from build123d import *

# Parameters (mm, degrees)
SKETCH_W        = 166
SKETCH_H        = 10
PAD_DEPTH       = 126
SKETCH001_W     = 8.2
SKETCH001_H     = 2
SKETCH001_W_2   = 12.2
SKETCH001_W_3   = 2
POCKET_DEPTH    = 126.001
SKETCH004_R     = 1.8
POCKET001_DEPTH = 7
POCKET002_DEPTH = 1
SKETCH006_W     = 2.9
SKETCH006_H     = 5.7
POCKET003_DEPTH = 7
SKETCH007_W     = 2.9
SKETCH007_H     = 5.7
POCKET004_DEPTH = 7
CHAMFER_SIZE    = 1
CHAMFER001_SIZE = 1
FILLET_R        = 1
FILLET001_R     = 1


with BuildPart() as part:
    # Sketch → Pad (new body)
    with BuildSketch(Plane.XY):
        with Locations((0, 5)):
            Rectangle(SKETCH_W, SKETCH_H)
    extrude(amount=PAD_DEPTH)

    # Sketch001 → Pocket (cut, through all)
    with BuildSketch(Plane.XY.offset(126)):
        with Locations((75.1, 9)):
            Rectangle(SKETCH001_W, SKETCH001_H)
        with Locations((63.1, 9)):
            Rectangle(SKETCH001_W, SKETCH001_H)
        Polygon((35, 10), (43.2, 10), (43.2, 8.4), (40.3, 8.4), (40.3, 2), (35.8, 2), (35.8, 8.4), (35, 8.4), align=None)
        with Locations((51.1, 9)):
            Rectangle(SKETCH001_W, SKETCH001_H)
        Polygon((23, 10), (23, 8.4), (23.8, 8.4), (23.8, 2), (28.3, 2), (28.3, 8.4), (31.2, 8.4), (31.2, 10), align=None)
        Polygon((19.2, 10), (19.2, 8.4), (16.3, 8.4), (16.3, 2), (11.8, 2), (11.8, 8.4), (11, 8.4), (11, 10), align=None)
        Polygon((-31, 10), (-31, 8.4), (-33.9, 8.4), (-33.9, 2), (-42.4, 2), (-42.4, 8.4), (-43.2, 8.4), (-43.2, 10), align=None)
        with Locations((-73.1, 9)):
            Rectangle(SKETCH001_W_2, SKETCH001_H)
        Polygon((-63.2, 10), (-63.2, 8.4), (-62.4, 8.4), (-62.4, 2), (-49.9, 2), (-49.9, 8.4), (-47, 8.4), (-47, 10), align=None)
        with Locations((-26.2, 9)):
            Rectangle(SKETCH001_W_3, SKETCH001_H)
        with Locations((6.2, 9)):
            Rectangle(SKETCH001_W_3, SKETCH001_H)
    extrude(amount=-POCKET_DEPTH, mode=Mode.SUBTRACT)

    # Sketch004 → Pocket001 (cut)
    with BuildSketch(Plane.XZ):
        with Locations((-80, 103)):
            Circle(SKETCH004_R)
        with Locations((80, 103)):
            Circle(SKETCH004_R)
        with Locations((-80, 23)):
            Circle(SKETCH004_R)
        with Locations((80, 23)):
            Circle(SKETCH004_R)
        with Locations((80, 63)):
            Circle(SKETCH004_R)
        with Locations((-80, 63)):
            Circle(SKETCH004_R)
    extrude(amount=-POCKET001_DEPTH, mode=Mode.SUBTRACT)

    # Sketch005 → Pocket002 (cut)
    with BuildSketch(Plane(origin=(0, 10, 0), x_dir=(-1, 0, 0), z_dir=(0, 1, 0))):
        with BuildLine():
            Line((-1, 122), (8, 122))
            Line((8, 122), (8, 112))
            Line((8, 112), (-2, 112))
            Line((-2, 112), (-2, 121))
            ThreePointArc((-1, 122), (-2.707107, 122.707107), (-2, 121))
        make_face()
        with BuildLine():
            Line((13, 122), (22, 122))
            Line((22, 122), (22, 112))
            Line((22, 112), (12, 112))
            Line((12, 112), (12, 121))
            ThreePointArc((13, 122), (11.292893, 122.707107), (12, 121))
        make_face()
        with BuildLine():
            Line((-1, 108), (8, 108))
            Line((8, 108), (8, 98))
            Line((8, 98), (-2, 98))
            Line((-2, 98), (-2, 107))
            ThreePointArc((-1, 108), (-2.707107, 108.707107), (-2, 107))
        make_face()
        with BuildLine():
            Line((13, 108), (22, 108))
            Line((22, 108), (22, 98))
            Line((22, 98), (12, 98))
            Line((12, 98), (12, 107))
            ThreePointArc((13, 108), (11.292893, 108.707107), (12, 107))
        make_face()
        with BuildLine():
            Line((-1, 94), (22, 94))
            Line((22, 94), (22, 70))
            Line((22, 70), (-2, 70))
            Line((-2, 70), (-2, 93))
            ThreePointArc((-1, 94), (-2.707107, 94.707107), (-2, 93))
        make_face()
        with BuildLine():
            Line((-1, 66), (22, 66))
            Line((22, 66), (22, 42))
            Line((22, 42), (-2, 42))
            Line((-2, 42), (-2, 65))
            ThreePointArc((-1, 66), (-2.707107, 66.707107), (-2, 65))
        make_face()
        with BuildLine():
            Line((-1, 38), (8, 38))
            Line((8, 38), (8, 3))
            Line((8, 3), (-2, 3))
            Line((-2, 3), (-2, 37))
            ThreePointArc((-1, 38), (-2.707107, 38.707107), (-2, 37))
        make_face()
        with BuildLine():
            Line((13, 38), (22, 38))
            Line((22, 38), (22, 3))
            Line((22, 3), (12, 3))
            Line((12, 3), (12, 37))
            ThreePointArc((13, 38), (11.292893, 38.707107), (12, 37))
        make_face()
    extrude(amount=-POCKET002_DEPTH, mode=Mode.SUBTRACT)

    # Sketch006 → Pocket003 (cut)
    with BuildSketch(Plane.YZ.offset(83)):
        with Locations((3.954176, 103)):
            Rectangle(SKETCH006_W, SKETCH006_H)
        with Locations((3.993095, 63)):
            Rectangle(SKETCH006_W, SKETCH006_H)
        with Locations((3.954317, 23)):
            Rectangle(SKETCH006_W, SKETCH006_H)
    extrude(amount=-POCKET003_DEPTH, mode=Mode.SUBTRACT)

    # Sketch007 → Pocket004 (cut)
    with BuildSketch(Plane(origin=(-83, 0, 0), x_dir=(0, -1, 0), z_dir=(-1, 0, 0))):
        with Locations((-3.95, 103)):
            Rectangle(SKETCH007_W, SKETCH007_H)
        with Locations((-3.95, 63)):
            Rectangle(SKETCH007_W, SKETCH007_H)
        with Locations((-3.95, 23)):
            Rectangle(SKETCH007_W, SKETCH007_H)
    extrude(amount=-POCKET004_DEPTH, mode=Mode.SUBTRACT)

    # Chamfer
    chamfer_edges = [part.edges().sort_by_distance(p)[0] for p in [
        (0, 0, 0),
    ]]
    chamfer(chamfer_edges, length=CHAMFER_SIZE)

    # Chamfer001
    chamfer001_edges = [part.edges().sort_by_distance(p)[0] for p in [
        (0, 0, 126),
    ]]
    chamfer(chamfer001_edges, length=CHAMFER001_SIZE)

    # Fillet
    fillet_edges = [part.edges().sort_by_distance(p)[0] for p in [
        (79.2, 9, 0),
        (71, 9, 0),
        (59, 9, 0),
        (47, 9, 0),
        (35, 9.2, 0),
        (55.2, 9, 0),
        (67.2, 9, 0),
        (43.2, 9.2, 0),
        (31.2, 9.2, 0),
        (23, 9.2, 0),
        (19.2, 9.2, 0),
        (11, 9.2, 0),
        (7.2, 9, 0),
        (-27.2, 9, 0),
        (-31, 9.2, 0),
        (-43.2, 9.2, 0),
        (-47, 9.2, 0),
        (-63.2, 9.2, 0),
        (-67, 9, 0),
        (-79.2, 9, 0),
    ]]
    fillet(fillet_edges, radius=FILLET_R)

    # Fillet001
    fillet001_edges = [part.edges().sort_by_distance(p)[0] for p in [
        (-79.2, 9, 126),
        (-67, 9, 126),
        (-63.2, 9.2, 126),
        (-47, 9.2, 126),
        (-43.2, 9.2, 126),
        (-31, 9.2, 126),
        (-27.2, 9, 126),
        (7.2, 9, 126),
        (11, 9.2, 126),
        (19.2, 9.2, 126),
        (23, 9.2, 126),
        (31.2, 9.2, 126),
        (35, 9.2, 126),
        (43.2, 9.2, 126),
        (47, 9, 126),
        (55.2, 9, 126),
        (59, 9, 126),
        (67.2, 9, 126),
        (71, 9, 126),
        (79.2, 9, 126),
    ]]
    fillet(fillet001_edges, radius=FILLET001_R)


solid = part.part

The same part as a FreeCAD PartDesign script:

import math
import FreeCAD as App
import Part
import Sketcher
Q = App.Units.Quantity


def edges_at(feature, points):
    """Names of the edges that pass closest to the given points."""
    edges = feature.Shape.Edges
    near = lambda p: min(range(len(edges)), key=lambda i: edges[i].distToShape(Part.Vertex(*p))[0])
    return sorted({f"Edge{near(p) + 1}" for p in points})

doc = App.newDocument("Part")
params = doc.addObject("Spreadsheet::Sheet", "Params")
for row, (alias, value) in enumerate([
    ("sketch1_width", "166 mm"),
    ("sketch1_height", "10 mm"),
    ("pad1_length", "126 mm"),
    ("sketch2_width", "2 mm"),
    ("sketch2_width2", "8.2 mm"),
    ("sketch2_width3", "0.8 mm"),
    ("sketch2_width4", "4.5 mm"),
    ("sketch2_width5", "12.2 mm"),
    ("sketch3_diameter", "3.6 mm"),
    ("pocket2_length", "7 mm"),
    ("sketch4_radius", "1 mm"),
    ("sketch4_width", "9 mm"),
    ("sketch4_width2", "23 mm"),
    ("sketch4_height", "34 mm"),
    ("pocket3_length", "1 mm"),
    ("sketch5_width", "2.9 mm"),
    ("sketch5_height", "5.7 mm"),
    ("pocket4_length", "7 mm"),
    ("sketch6_width", "2.9 mm"),
    ("sketch6_height", "5.7 mm"),
    ("pocket5_length", "7 mm"),
    ("chamfer_size", "1 mm"),
    ("chamfer2_size", "1 mm"),
    ("fillet_radius", "1 mm"),
    ("fillet2_radius", "1 mm"),
], start=1):
    params.set(f"A{row}", alias)
    params.set(f"B{row}", "=" + value)
    params.setAlias(f"B{row}", alias)

body = doc.addObject("PartDesign::Body", "Body")

# Sketch on XY plane
sketch1 = body.newObject("Sketcher::SketchObject", "Sketch")
sketch1.AttachmentSupport = (doc.getObject("XY_Plane"), [""])
sketch1.MapMode = "FlatFace"
sketch1.addGeometry([
    Part.LineSegment(App.Vector(-83, 10, 0), App.Vector(-83, 0, 0)),
    Part.LineSegment(App.Vector(-83, 0, 0), App.Vector(83, 0, 0)),
    Part.LineSegment(App.Vector(83, 0, 0), App.Vector(83, 10, 0)),
    Part.LineSegment(App.Vector(83, 10, 0), App.Vector(-83, 10, 0)),
], False)
sketch1.addConstraint([
    Sketcher.Constraint("Coincident", 0, 2, 1, 1),
    Sketcher.Constraint("Coincident", 1, 2, 2, 1),
    Sketcher.Constraint("Coincident", 2, 2, 3, 1),
    Sketcher.Constraint("Coincident", 3, 2, 0, 1),
    Sketcher.Constraint("Vertical", 0),
    Sketcher.Constraint("Horizontal", 1),
    Sketcher.Constraint("Vertical", 2),
    Sketcher.Constraint("Horizontal", 3),
    Sketcher.Constraint("Symmetric", 0, 2, 1, 2, -1, 1),
    Sketcher.Constraint("DistanceX", 1, 1, 1, 2, Q("166 mm")),
    Sketcher.Constraint("DistanceY", 0, 2, 0, 1, Q("10 mm")),
])
sketch1.setExpression("Constraints[9]", "Params.sketch1_width")
sketch1.setExpression("Constraints[10]", "Params.sketch1_height")
pad1 = body.newObject("PartDesign::Pad", "Pad")
pad1.Profile = sketch1
pad1.setExpression("Length", "Params.pad1_length")

# Sketch on XY plane
sketch2 = body.newObject("Sketcher::SketchObject", "Sketch001")
sketch2.AttachmentSupport = (doc.getObject("XY_Plane"), [""])
sketch2.MapMode = "FlatFace"
sketch2.AttachmentOffset = App.Placement(App.Vector(0, 0, 126), App.Rotation())
sketch2.addGeometry([
    Part.LineSegment(App.Vector(71, 10, 0), App.Vector(71, 8, 0)),  # 0
    Part.LineSegment(App.Vector(71, 8, 0), App.Vector(79.2, 8, 0)),  # 1
    Part.LineSegment(App.Vector(79.2, 8, 0), App.Vector(79.2, 10, 0)),  # 2
    Part.LineSegment(App.Vector(79.2, 10, 0), App.Vector(71, 10, 0)),  # 3
    Part.LineSegment(App.Vector(59, 10, 0), App.Vector(59, 8, 0)),  # 4
    Part.LineSegment(App.Vector(59, 8, 0), App.Vector(67.2, 8, 0)),  # 5
    Part.LineSegment(App.Vector(67.2, 8, 0), App.Vector(67.2, 10, 0)),  # 6
    Part.LineSegment(App.Vector(67.2, 10, 0), App.Vector(59, 10, 0)),  # 7
    Part.LineSegment(App.Vector(43.2, 10, 0), App.Vector(35, 10, 0)),  # 8
    Part.LineSegment(App.Vector(35, 10, 0), App.Vector(35, 8.4, 0)),  # 9
    Part.LineSegment(App.Vector(35, 8.4, 0), App.Vector(35.8, 8.4, 0)),  # 10
    Part.LineSegment(App.Vector(35.8, 8.4, 0), App.Vector(35.8, 2, 0)),  # 11
    Part.LineSegment(App.Vector(35.8, 2, 0), App.Vector(40.3, 2, 0)),  # 12
    Part.LineSegment(App.Vector(40.3, 2, 0), App.Vector(40.3, 8.4, 0)),  # 13
    Part.LineSegment(App.Vector(40.3, 8.4, 0), App.Vector(43.2, 8.4, 0)),  # 14
    Part.LineSegment(App.Vector(43.2, 8.4, 0), App.Vector(43.2, 10, 0)),  # 15
    Part.LineSegment(App.Vector(47, 10, 0), App.Vector(47, 8, 0)),  # 16
    Part.LineSegment(App.Vector(47, 8, 0), App.Vector(55.2, 8, 0)),  # 17
    Part.LineSegment(App.Vector(55.2, 8, 0), App.Vector(55.2, 10, 0)),  # 18
    Part.LineSegment(App.Vector(55.2, 10, 0), App.Vector(47, 10, 0)),  # 19
    Part.LineSegment(App.Vector(23, 10, 0), App.Vector(23, 8.4, 0)),  # 20
    Part.LineSegment(App.Vector(23, 8.4, 0), App.Vector(23.8, 8.4, 0)),  # 21
    Part.LineSegment(App.Vector(23.8, 8.4, 0), App.Vector(23.8, 2, 0)),  # 22
    Part.LineSegment(App.Vector(23.8, 2, 0), App.Vector(28.3, 2, 0)),  # 23
    Part.LineSegment(App.Vector(28.3, 2, 0), App.Vector(28.3, 8.4, 0)),  # 24
    Part.LineSegment(App.Vector(28.3, 8.4, 0), App.Vector(31.2, 8.4, 0)),  # 25
    Part.LineSegment(App.Vector(31.2, 8.4, 0), App.Vector(31.2, 10, 0)),  # 26
    Part.LineSegment(App.Vector(31.2, 10, 0), App.Vector(23, 10, 0)),  # 27
    Part.LineSegment(App.Vector(19.2, 8.4, 0), App.Vector(19.2, 10, 0)),  # 28
    Part.LineSegment(App.Vector(19.2, 10, 0), App.Vector(11, 10, 0)),  # 29
    Part.LineSegment(App.Vector(11, 10, 0), App.Vector(11, 8.4, 0)),  # 30
    Part.LineSegment(App.Vector(11, 8.4, 0), App.Vector(11.8, 8.4, 0)),  # 31
    Part.LineSegment(App.Vector(11.8, 8.4, 0), App.Vector(11.8, 2, 0)),  # 32
    Part.LineSegment(App.Vector(11.8, 2, 0), App.Vector(16.3, 2, 0)),  # 33
    Part.LineSegment(App.Vector(16.3, 2, 0), App.Vector(16.3, 8.4, 0)),  # 34
    Part.LineSegment(App.Vector(16.3, 8.4, 0), App.Vector(19.2, 8.4, 0)),  # 35
    Part.LineSegment(App.Vector(-31, 8.4, 0), App.Vector(-31, 10, 0)),  # 36
    Part.LineSegment(App.Vector(-31, 10, 0), App.Vector(-43.2, 10, 0)),  # 37
    Part.LineSegment(App.Vector(-43.2, 10, 0), App.Vector(-43.2, 8.4, 0)),  # 38
    Part.LineSegment(App.Vector(-43.2, 8.4, 0), App.Vector(-42.4, 8.4, 0)),  # 39
    Part.LineSegment(App.Vector(-42.4, 8.4, 0), App.Vector(-42.4, 2, 0)),  # 40
    Part.LineSegment(App.Vector(-42.4, 2, 0), App.Vector(-33.9, 2, 0)),  # 41
    Part.LineSegment(App.Vector(-33.9, 2, 0), App.Vector(-33.9, 8.4, 0)),  # 42
    Part.LineSegment(App.Vector(-33.9, 8.4, 0), App.Vector(-31, 8.4, 0)),  # 43
    Part.LineSegment(App.Vector(-79.2, 10, 0), App.Vector(-79.2, 8, 0)),  # 44
    Part.LineSegment(App.Vector(-79.2, 8, 0), App.Vector(-67, 8, 0)),  # 45
    Part.LineSegment(App.Vector(-67, 8, 0), App.Vector(-67, 10, 0)),  # 46
    Part.LineSegment(App.Vector(-67, 10, 0), App.Vector(-79.2, 10, 0)),  # 47
    Part.LineSegment(App.Vector(-63.2, 10, 0), App.Vector(-63.2, 8.4, 0)),  # 48
    Part.LineSegment(App.Vector(-63.2, 8.4, 0), App.Vector(-62.4, 8.4, 0)),  # 49
    Part.LineSegment(App.Vector(-62.4, 8.4, 0), App.Vector(-62.4, 2, 0)),  # 50
    Part.LineSegment(App.Vector(-62.4, 2, 0), App.Vector(-49.9, 2, 0)),  # 51
    Part.LineSegment(App.Vector(-49.9, 2, 0), App.Vector(-49.9, 8.4, 0)),  # 52
    Part.LineSegment(App.Vector(-49.9, 8.4, 0), App.Vector(-47, 8.4, 0)),  # 53
    Part.LineSegment(App.Vector(-47, 8.4, 0), App.Vector(-47, 10, 0)),  # 54
    Part.LineSegment(App.Vector(-47, 10, 0), App.Vector(-63.2, 10, 0)),  # 55
    Part.LineSegment(App.Vector(-27.2, 10, 0), App.Vector(-27.2, 8, 0)),  # 56
    Part.LineSegment(App.Vector(-27.2, 8, 0), App.Vector(-25.2, 8, 0)),  # 57
    Part.LineSegment(App.Vector(-25.2, 8, 0), App.Vector(-25.2, 10, 0)),  # 58
    Part.LineSegment(App.Vector(-25.2, 10, 0), App.Vector(-27.2, 10, 0)),  # 59
    Part.LineSegment(App.Vector(5.2, 10, 0), App.Vector(5.2, 8, 0)),  # 60
    Part.LineSegment(App.Vector(5.2, 8, 0), App.Vector(7.2, 8, 0)),  # 61
    Part.LineSegment(App.Vector(7.2, 8, 0), App.Vector(7.2, 10, 0)),  # 62
    Part.LineSegment(App.Vector(7.2, 10, 0), App.Vector(5.2, 10, 0)),  # 63
], False)
sketch2.addConstraint([
    Sketcher.Constraint("Coincident", 0, 2, 1, 1),
    Sketcher.Constraint("Coincident", 1, 2, 2, 1),
    Sketcher.Constraint("Coincident", 2, 2, 3, 1),
    Sketcher.Constraint("Coincident", 3, 2, 0, 1),
    Sketcher.Constraint("Coincident", 4, 2, 5, 1),
    Sketcher.Constraint("Coincident", 5, 2, 6, 1),
    Sketcher.Constraint("Coincident", 6, 2, 7, 1),
    Sketcher.Constraint("Coincident", 7, 2, 4, 1),
    Sketcher.Constraint("Coincident", 8, 2, 9, 1),
    Sketcher.Constraint("Coincident", 9, 2, 10, 1),
    Sketcher.Constraint("Coincident", 10, 2, 11, 1),
    Sketcher.Constraint("Coincident", 11, 2, 12, 1),
    Sketcher.Constraint("Coincident", 12, 2, 13, 1),
    Sketcher.Constraint("Coincident", 13, 2, 14, 1),
    Sketcher.Constraint("Coincident", 14, 2, 15, 1),
    Sketcher.Constraint("Coincident", 15, 2, 8, 1),
    Sketcher.Constraint("Coincident", 16, 2, 17, 1),
    Sketcher.Constraint("Coincident", 17, 2, 18, 1),
    Sketcher.Constraint("Coincident", 18, 2, 19, 1),
    Sketcher.Constraint("Coincident", 19, 2, 16, 1),
    Sketcher.Constraint("Coincident", 20, 2, 21, 1),
    Sketcher.Constraint("Coincident", 21, 2, 22, 1),
    Sketcher.Constraint("Coincident", 22, 2, 23, 1),
    Sketcher.Constraint("Coincident", 23, 2, 24, 1),
    Sketcher.Constraint("Coincident", 24, 2, 25, 1),
    Sketcher.Constraint("Coincident", 25, 2, 26, 1),
    Sketcher.Constraint("Coincident", 26, 2, 27, 1),
    Sketcher.Constraint("Coincident", 27, 2, 20, 1),
    Sketcher.Constraint("Coincident", 28, 2, 29, 1),
    Sketcher.Constraint("Coincident", 29, 2, 30, 1),
    Sketcher.Constraint("Coincident", 30, 2, 31, 1),
    Sketcher.Constraint("Coincident", 31, 2, 32, 1),
    Sketcher.Constraint("Coincident", 32, 2, 33, 1),
    Sketcher.Constraint("Coincident", 33, 2, 34, 1),
    Sketcher.Constraint("Coincident", 34, 2, 35, 1),
    Sketcher.Constraint("Coincident", 35, 2, 28, 1),
    Sketcher.Constraint("Coincident", 36, 2, 37, 1),
    Sketcher.Constraint("Coincident", 37, 2, 38, 1),
    Sketcher.Constraint("Coincident", 38, 2, 39, 1),
    Sketcher.Constraint("Coincident", 39, 2, 40, 1),
    Sketcher.Constraint("Coincident", 40, 2, 41, 1),
    Sketcher.Constraint("Coincident", 41, 2, 42, 1),
    Sketcher.Constraint("Coincident", 42, 2, 43, 1),
    Sketcher.Constraint("Coincident", 43, 2, 36, 1),
    Sketcher.Constraint("Coincident", 44, 2, 45, 1),
    Sketcher.Constraint("Coincident", 45, 2, 46, 1),
    Sketcher.Constraint("Coincident", 46, 2, 47, 1),
    Sketcher.Constraint("Coincident", 47, 2, 44, 1),
    Sketcher.Constraint("Coincident", 48, 2, 49, 1),
    Sketcher.Constraint("Coincident", 49, 2, 50, 1),
    Sketcher.Constraint("Coincident", 50, 2, 51, 1),
    Sketcher.Constraint("Coincident", 51, 2, 52, 1),
    Sketcher.Constraint("Coincident", 52, 2, 53, 1),
    Sketcher.Constraint("Coincident", 53, 2, 54, 1),
    Sketcher.Constraint("Coincident", 54, 2, 55, 1),
    Sketcher.Constraint("Coincident", 55, 2, 48, 1),
    Sketcher.Constraint("Coincident", 56, 2, 57, 1),
    Sketcher.Constraint("Coincident", 57, 2, 58, 1),
    Sketcher.Constraint("Coincident", 58, 2, 59, 1),
    Sketcher.Constraint("Coincident", 59, 2, 56, 1),
    Sketcher.Constraint("Coincident", 60, 2, 61, 1),
    Sketcher.Constraint("Coincident", 61, 2, 62, 1),
    Sketcher.Constraint("Coincident", 62, 2, 63, 1),
    Sketcher.Constraint("Coincident", 63, 2, 60, 1),
    Sketcher.Constraint("Vertical", 0),
    Sketcher.Constraint("Horizontal", 1),
    Sketcher.Constraint("Vertical", 2),
    Sketcher.Constraint("Horizontal", 3),
    Sketcher.Constraint("Vertical", 4),
    Sketcher.Constraint("Horizontal", 5),
    Sketcher.Constraint("Vertical", 6),
    Sketcher.Constraint("Horizontal", 7),
    Sketcher.Constraint("Horizontal", 8),
    Sketcher.Constraint("Vertical", 9),
    Sketcher.Constraint("Horizontal", 10),
    Sketcher.Constraint("Vertical", 11),
    Sketcher.Constraint("Horizontal", 12),
    Sketcher.Constraint("Vertical", 13),
    Sketcher.Constraint("Horizontal", 14),
    Sketcher.Constraint("Vertical", 15),
    Sketcher.Constraint("Vertical", 16),
    Sketcher.Constraint("Horizontal", 17),
    Sketcher.Constraint("Vertical", 18),
    Sketcher.Constraint("Horizontal", 19),
    Sketcher.Constraint("Vertical", 20),
    Sketcher.Constraint("Horizontal", 21),
    Sketcher.Constraint("Vertical", 22),
    Sketcher.Constraint("Horizontal", 23),
    Sketcher.Constraint("Vertical", 24),
    Sketcher.Constraint("Horizontal", 25),
    Sketcher.Constraint("Vertical", 26),
    Sketcher.Constraint("Horizontal", 27),
    Sketcher.Constraint("Vertical", 28),
    Sketcher.Constraint("Horizontal", 29),
    Sketcher.Constraint("Vertical", 30),
    Sketcher.Constraint("Horizontal", 31),
    Sketcher.Constraint("Vertical", 32),
    Sketcher.Constraint("Horizontal", 33),
    Sketcher.Constraint("Vertical", 34),
    Sketcher.Constraint("Horizontal", 35),
    Sketcher.Constraint("Vertical", 36),
    Sketcher.Constraint("Horizontal", 37),
    Sketcher.Constraint("Vertical", 38),
    Sketcher.Constraint("Horizontal", 39),
    Sketcher.Constraint("Vertical", 40),
    Sketcher.Constraint("Horizontal", 41),
    Sketcher.Constraint("Vertical", 42),
    Sketcher.Constraint("Horizontal", 43),
    Sketcher.Constraint("Vertical", 44),
    Sketcher.Constraint("Horizontal", 45),
    Sketcher.Constraint("Vertical", 46),
    Sketcher.Constraint("Horizontal", 47),
    Sketcher.Constraint("Vertical", 48),
    Sketcher.Constraint("Horizontal", 49),
    Sketcher.Constraint("Vertical", 50),
    Sketcher.Constraint("Horizontal", 51),
    Sketcher.Constraint("Vertical", 52),
    Sketcher.Constraint("Horizontal", 53),
    Sketcher.Constraint("Vertical", 54),
    Sketcher.Constraint("Horizontal", 55),
    Sketcher.Constraint("Vertical", 56),
    Sketcher.Constraint("Horizontal", 57),
    Sketcher.Constraint("Vertical", 58),
    Sketcher.Constraint("Horizontal", 59),
    Sketcher.Constraint("Vertical", 60),
    Sketcher.Constraint("Horizontal", 61),
    Sketcher.Constraint("Vertical", 62),
    Sketcher.Constraint("Horizontal", 63),
    Sketcher.Constraint("Symmetric", 15, 2, 37, 2, -2),
    Sketcher.Constraint("Symmetric", 1, 2, 44, 2, -2),
    Sketcher.Constraint("Symmetric", 19, 2, 54, 2, -2),
    Sketcher.Constraint("Horizontal", 1, 2, 4, 2),
    Sketcher.Constraint("Horizontal", 3, 2, 6, 2),
    Sketcher.Constraint("Horizontal", 7, 2, 8, 2),
    Sketcher.Constraint("Horizontal", 10, 2, 13, 2),
    Sketcher.Constraint("Horizontal", 5, 2, 16, 2),
    Sketcher.Constraint("Horizontal", 15, 2, 18, 2),
    Sketcher.Constraint("Horizontal", 14, 2, 20, 2),
    Sketcher.Constraint("Horizontal", 12, 2, 22, 2),
    Sketcher.Constraint("Horizontal", 21, 2, 24, 2),
    Sketcher.Constraint("Horizontal", 19, 2, 26, 2),
    Sketcher.Constraint("Horizontal", 27, 2, 28, 2),
    Sketcher.Constraint("Horizontal", 25, 2, 30, 2),
    Sketcher.Constraint("Horizontal", 23, 2, 32, 2),
    Sketcher.Constraint("Horizontal", 31, 2, 34, 2),
    Sketcher.Constraint("Horizontal", 35, 2, 38, 2),
    Sketcher.Constraint("Horizontal", 33, 2, 40, 2),
    Sketcher.Constraint("Horizontal", 39, 2, 42, 2),
    Sketcher.Constraint("Horizontal", 37, 2, 46, 2),
    Sketcher.Constraint("Horizontal", 43, 2, 48, 2),
    Sketcher.Constraint("Horizontal", 41, 2, 50, 2),
    Sketcher.Constraint("Horizontal", 49, 2, 52, 2),
    Sketcher.Constraint("Horizontal", 45, 2, 56, 2),
    Sketcher.Constraint("Horizontal", 55, 2, 58, 2),
    Sketcher.Constraint("Horizontal", 57, 2, 60, 2),
    Sketcher.Constraint("Horizontal", 59, 2, 62, 2),
    Sketcher.Constraint("Equal", 3, 5),
    Sketcher.Constraint("Equal", 7, 8),
    Sketcher.Constraint("Equal", 8, 17),
    Sketcher.Constraint("Equal", 10, 21),
    Sketcher.Constraint("Equal", 12, 23),
    Sketcher.Constraint("Equal", 14, 25),
    Sketcher.Constraint("Equal", 27, 29),
    Sketcher.Constraint("Equal", 21, 31),
    Sketcher.Constraint("Equal", 23, 33),
    Sketcher.Constraint("Equal", 31, 39),
    Sketcher.Constraint("Equal", 35, 43),
    Sketcher.Constraint("Equal", 37, 45),
    Sketcher.Constraint("Equal", 39, 49),
    Sketcher.Constraint("Equal", 43, 53),
    Sketcher.Constraint("Equal", 59, 61),
    Sketcher.Constraint("Equal", 63, 0),
    Sketcher.Constraint("DistanceX", 57, 1, 57, 2, Q("2 mm")),
    Sketcher.Constraint("DistanceX", 1, 1, 1, 2, Q("8.2 mm")),
    Sketcher.Constraint("DistanceX", 10, 1, 10, 2, Q("0.8 mm")),
    Sketcher.Constraint("DistanceX", 12, 1, 12, 2, Q("4.5 mm")),
    Sketcher.Constraint("DistanceX", 37, 2, 37, 1, Q("12.2 mm")),
    Sketcher.Constraint("DistanceX", 51, 1, 51, 2, Q("12.5 mm")),
    Sketcher.Constraint("DistanceY", 9, 2, 9, 1, Q("1.6 mm")),
    Sketcher.Constraint("DistanceY", 11, 2, 11, 1, Q("6.4 mm")),
    Sketcher.Constraint("DistanceX", -1, 1, 0, 2, Q("71 mm")),
    Sketcher.Constraint("DistanceY", -1, 1, 0, 2, Q("8 mm")),
    Sketcher.Constraint("DistanceX", -1, 1, 4, 2, Q("59 mm")),
    Sketcher.Constraint("DistanceX", -1, 1, 8, 2, Q("35 mm")),
    Sketcher.Constraint("DistanceX", -1, 1, 16, 2, Q("47 mm")),
    Sketcher.Constraint("DistanceX", -1, 1, 20, 2, Q("23 mm")),
    Sketcher.Constraint("DistanceX", -1, 1, 29, 2, Q("11 mm")),
    Sketcher.Constraint("DistanceX", 56, 2, -1, 1, Q("27.2 mm")),
    Sketcher.Constraint("DistanceX", -1, 1, 60, 2, Q("5.2 mm")),
])
sketch2.setExpression("Constraints[172]", "Params.sketch2_width")
sketch2.setExpression("Constraints[173]", "Params.sketch2_width2")
sketch2.setExpression("Constraints[174]", "Params.sketch2_width3")
sketch2.setExpression("Constraints[175]", "Params.sketch2_width4")
sketch2.setExpression("Constraints[176]", "Params.sketch2_width5")
pocket1 = body.newObject("PartDesign::Pocket", "Pocket")
pocket1.Profile = sketch2
pocket1.Type = "ThroughAll"

# Sketch on XZ plane
sketch3 = body.newObject("Sketcher::SketchObject", "Sketch002")
sketch3.AttachmentSupport = (doc.getObject("XZ_Plane"), [""])
sketch3.MapMode = "FlatFace"
sketch3.addGeometry([
    Part.Circle(App.Vector(-80, 103, 0), App.Vector(0, 0, 1), 1.8),  # 0
    Part.Circle(App.Vector(80, 103, 0), App.Vector(0, 0, 1), 1.8),  # 1
    Part.Circle(App.Vector(-80, 23, 0), App.Vector(0, 0, 1), 1.8),  # 2
    Part.Circle(App.Vector(80, 23, 0), App.Vector(0, 0, 1), 1.8),  # 3
    Part.Circle(App.Vector(80, 63, 0), App.Vector(0, 0, 1), 1.8),  # 4
    Part.Circle(App.Vector(-80, 63, 0), App.Vector(0, 0, 1), 1.8),  # 5
], False)
sketch3.addConstraint([
    Sketcher.Constraint("Equal", 0, 1),
    Sketcher.Constraint("Equal", 1, 2),
    Sketcher.Constraint("Equal", 2, 3),
    Sketcher.Constraint("Equal", 3, 4),
    Sketcher.Constraint("Equal", 4, 5),
    Sketcher.Constraint("Symmetric", 0, 3, 1, 3, -2),
    Sketcher.Constraint("Symmetric", 2, 3, 3, 3, -2),
    Sketcher.Constraint("Symmetric", 4, 3, 5, 3, -2),
    Sketcher.Constraint("Vertical", 0, 3, 2, 3),
    Sketcher.Constraint("Vertical", 3, 3, 4, 3),
    Sketcher.Constraint("Diameter", 0, Q("3.6 mm")),
    Sketcher.Constraint("DistanceX", 0, 3, -1, 1, Q("80 mm")),
    Sketcher.Constraint("DistanceY", -1, 1, 0, 3, Q("103 mm")),
    Sketcher.Constraint("DistanceY", -1, 1, 2, 3, Q("23 mm")),
    Sketcher.Constraint("DistanceY", -1, 1, 4, 3, Q("63 mm")),
])
sketch3.setExpression("Constraints[10]", "Params.sketch3_diameter")
pocket2 = body.newObject("PartDesign::Pocket", "Pocket001")
pocket2.Profile = sketch3
pocket2.setExpression("Length", "Params.pocket2_length")

# Sketch on XZ plane
sketch4 = body.newObject("Sketcher::SketchObject", "Sketch003")
sketch4.AttachmentSupport = (doc.getObject("XZ_Plane"), [""])
sketch4.MapMode = "FlatFace"
sketch4.AttachmentOffset = App.Placement(App.Vector(0, 0, -10), App.Rotation())
sketch4.addGeometry([
    Part.LineSegment(App.Vector(-8, 122, 0), App.Vector(1, 122, 0)),  # 0
    Part.ArcOfCircle(Part.Circle(App.Vector(2, 122, 0), App.Vector(0, 0, 1), 1), math.radians(-90), math.radians(180)),  # 1
    Part.LineSegment(App.Vector(2, 121, 0), App.Vector(2, 112, 0)),  # 2
    Part.LineSegment(App.Vector(2, 112, 0), App.Vector(-8, 112, 0)),  # 3
    Part.LineSegment(App.Vector(-8, 112, 0), App.Vector(-8, 122, 0)),  # 4
    Part.LineSegment(App.Vector(-22, 122, 0), App.Vector(-13, 122, 0)),  # 5
    Part.ArcOfCircle(Part.Circle(App.Vector(-12, 122, 0), App.Vector(0, 0, 1), 1), math.radians(-90), math.radians(180)),  # 6
    Part.LineSegment(App.Vector(-12, 121, 0), App.Vector(-12, 112, 0)),  # 7
    Part.LineSegment(App.Vector(-12, 112, 0), App.Vector(-22, 112, 0)),  # 8
    Part.LineSegment(App.Vector(-22, 112, 0), App.Vector(-22, 122, 0)),  # 9
    Part.LineSegment(App.Vector(-8, 108, 0), App.Vector(1, 108, 0)),  # 10
    Part.ArcOfCircle(Part.Circle(App.Vector(2, 108, 0), App.Vector(0, 0, 1), 1), math.radians(-90), math.radians(180)),  # 11
    Part.LineSegment(App.Vector(2, 107, 0), App.Vector(2, 98, 0)),  # 12
    Part.LineSegment(App.Vector(2, 98, 0), App.Vector(-8, 98, 0)),  # 13
    Part.LineSegment(App.Vector(-8, 98, 0), App.Vector(-8, 108, 0)),  # 14
    Part.LineSegment(App.Vector(-22, 108, 0), App.Vector(-13, 108, 0)),  # 15
    Part.ArcOfCircle(Part.Circle(App.Vector(-12, 108, 0), App.Vector(0, 0, 1), 1), math.radians(-90), math.radians(180)),  # 16
    Part.LineSegment(App.Vector(-12, 107, 0), App.Vector(-12, 98, 0)),  # 17
    Part.LineSegment(App.Vector(-12, 98, 0), App.Vector(-22, 98, 0)),  # 18
    Part.LineSegment(App.Vector(-22, 98, 0), App.Vector(-22, 108, 0)),  # 19
    Part.LineSegment(App.Vector(-22, 94, 0), App.Vector(1, 94, 0)),  # 20
    Part.ArcOfCircle(Part.Circle(App.Vector(2, 94, 0), App.Vector(0, 0, 1), 1), math.radians(-90), math.radians(180)),  # 21
    Part.LineSegment(App.Vector(2, 93, 0), App.Vector(2, 70, 0)),  # 22
    Part.LineSegment(App.Vector(2, 70, 0), App.Vector(-22, 70, 0)),  # 23
    Part.LineSegment(App.Vector(-22, 70, 0), App.Vector(-22, 94, 0)),  # 24
    Part.LineSegment(App.Vector(-22, 66, 0), App.Vector(1, 66, 0)),  # 25
    Part.ArcOfCircle(Part.Circle(App.Vector(2, 66, 0), App.Vector(0, 0, 1), 1), math.radians(-90), math.radians(180)),  # 26
    Part.LineSegment(App.Vector(2, 65, 0), App.Vector(2, 42, 0)),  # 27
    Part.LineSegment(App.Vector(2, 42, 0), App.Vector(-22, 42, 0)),  # 28
    Part.LineSegment(App.Vector(-22, 42, 0), App.Vector(-22, 66, 0)),  # 29
    Part.LineSegment(App.Vector(-8, 38, 0), App.Vector(1, 38, 0)),  # 30
    Part.ArcOfCircle(Part.Circle(App.Vector(2, 38, 0), App.Vector(0, 0, 1), 1), math.radians(-90), math.radians(180)),  # 31
    Part.LineSegment(App.Vector(2, 37, 0), App.Vector(2, 3, 0)),  # 32
    Part.LineSegment(App.Vector(2, 3, 0), App.Vector(-8, 3, 0)),  # 33
    Part.LineSegment(App.Vector(-8, 3, 0), App.Vector(-8, 38, 0)),  # 34
    Part.LineSegment(App.Vector(-22, 38, 0), App.Vector(-13, 38, 0)),  # 35
    Part.ArcOfCircle(Part.Circle(App.Vector(-12, 38, 0), App.Vector(0, 0, 1), 1), math.radians(-90), math.radians(180)),  # 36
    Part.LineSegment(App.Vector(-12, 37, 0), App.Vector(-12, 3, 0)),  # 37
    Part.LineSegment(App.Vector(-12, 3, 0), App.Vector(-22, 3, 0)),  # 38
    Part.LineSegment(App.Vector(-22, 3, 0), App.Vector(-22, 38, 0)),  # 39
], False)
sketch4.addConstraint([
    Sketcher.Constraint("Coincident", 0, 2, 1, 2),
    Sketcher.Constraint("Coincident", 1, 1, 2, 1),
    Sketcher.Constraint("Coincident", 2, 2, 3, 1),
    Sketcher.Constraint("Coincident", 3, 2, 4, 1),
    Sketcher.Constraint("Coincident", 4, 2, 0, 1),
    Sketcher.Constraint("Coincident", 5, 2, 6, 2),
    Sketcher.Constraint("Coincident", 6, 1, 7, 1),
    Sketcher.Constraint("Coincident", 7, 2, 8, 1),
    Sketcher.Constraint("Coincident", 8, 2, 9, 1),
    Sketcher.Constraint("Coincident", 9, 2, 5, 1),
    Sketcher.Constraint("Coincident", 10, 2, 11, 2),
    Sketcher.Constraint("Coincident", 11, 1, 12, 1),
    Sketcher.Constraint("Coincident", 12, 2, 13, 1),
    Sketcher.Constraint("Coincident", 13, 2, 14, 1),
    Sketcher.Constraint("Coincident", 14, 2, 10, 1),
    Sketcher.Constraint("Coincident", 15, 2, 16, 2),
    Sketcher.Constraint("Coincident", 16, 1, 17, 1),
    Sketcher.Constraint("Coincident", 17, 2, 18, 1),
    Sketcher.Constraint("Coincident", 18, 2, 19, 1),
    Sketcher.Constraint("Coincident", 19, 2, 15, 1),
    Sketcher.Constraint("Coincident", 20, 2, 21, 2),
    Sketcher.Constraint("Coincident", 21, 1, 22, 1),
    Sketcher.Constraint("Coincident", 22, 2, 23, 1),
    Sketcher.Constraint("Coincident", 23, 2, 24, 1),
    Sketcher.Constraint("Coincident", 24, 2, 20, 1),
    Sketcher.Constraint("Coincident", 25, 2, 26, 2),
    Sketcher.Constraint("Coincident", 26, 1, 27, 1),
    Sketcher.Constraint("Coincident", 27, 2, 28, 1),
    Sketcher.Constraint("Coincident", 28, 2, 29, 1),
    Sketcher.Constraint("Coincident", 29, 2, 25, 1),
    Sketcher.Constraint("Coincident", 30, 2, 31, 2),
    Sketcher.Constraint("Coincident", 31, 1, 32, 1),
    Sketcher.Constraint("Coincident", 32, 2, 33, 1),
    Sketcher.Constraint("Coincident", 33, 2, 34, 1),
    Sketcher.Constraint("Coincident", 34, 2, 30, 1),
    Sketcher.Constraint("Coincident", 35, 2, 36, 2),
    Sketcher.Constraint("Coincident", 36, 1, 37, 1),
    Sketcher.Constraint("Coincident", 37, 2, 38, 1),
    Sketcher.Constraint("Coincident", 38, 2, 39, 1),
    Sketcher.Constraint("Coincident", 39, 2, 35, 1),
    Sketcher.Constraint("Horizontal", 0),
    Sketcher.Constraint("Vertical", 2),
    Sketcher.Constraint("Horizontal", 3),
    Sketcher.Constraint("Vertical", 4),
    Sketcher.Constraint("Horizontal", 5),
    Sketcher.Constraint("Vertical", 7),
    Sketcher.Constraint("Horizontal", 8),
    Sketcher.Constraint("Vertical", 9),
    Sketcher.Constraint("Horizontal", 10),
    Sketcher.Constraint("Vertical", 12),
    Sketcher.Constraint("Horizontal", 13),
    Sketcher.Constraint("Vertical", 14),
    Sketcher.Constraint("Horizontal", 15),
    Sketcher.Constraint("Vertical", 17),
    Sketcher.Constraint("Horizontal", 18),
    Sketcher.Constraint("Vertical", 19),
    Sketcher.Constraint("Horizontal", 20),
    Sketcher.Constraint("Vertical", 22),
    Sketcher.Constraint("Horizontal", 23),
    Sketcher.Constraint("Vertical", 24),
    Sketcher.Constraint("Horizontal", 25),
    Sketcher.Constraint("Vertical", 27),
    Sketcher.Constraint("Horizontal", 28),
    Sketcher.Constraint("Vertical", 29),
    Sketcher.Constraint("Horizontal", 30),
    Sketcher.Constraint("Vertical", 32),
    Sketcher.Constraint("Horizontal", 33),
    Sketcher.Constraint("Vertical", 34),
    Sketcher.Constraint("Horizontal", 35),
    Sketcher.Constraint("Vertical", 37),
    Sketcher.Constraint("Horizontal", 38),
    Sketcher.Constraint("Vertical", 39),
    Sketcher.Constraint("Equal", 1, 6),
    Sketcher.Constraint("Equal", 6, 11),
    Sketcher.Constraint("Equal", 11, 16),
    Sketcher.Constraint("Equal", 16, 21),
    Sketcher.Constraint("Equal", 21, 26),
    Sketcher.Constraint("Equal", 26, 31),
    Sketcher.Constraint("Equal", 31, 36),
    Sketcher.Constraint("Horizontal", 1, 3, 6, 3),
    Sketcher.Constraint("Horizontal", 11, 3, 16, 3),
    Sketcher.Constraint("Horizontal", 31, 3, 36, 3),
    Sketcher.Constraint("Horizontal", 6, 3, 0, 2),
    Sketcher.Constraint("Horizontal", 4, 2, 5, 2),
    Sketcher.Constraint("Horizontal", 3, 2, 7, 2),
    Sketcher.Constraint("Horizontal", 16, 3, 10, 2),
    Sketcher.Constraint("Horizontal", 14, 2, 15, 2),
    Sketcher.Constraint("Horizontal", 13, 2, 17, 2),
    Sketcher.Constraint("Horizontal", 21, 3, 20, 2),
    Sketcher.Constraint("Horizontal", 26, 3, 25, 2),
    Sketcher.Constraint("Horizontal", 36, 3, 30, 2),
    Sketcher.Constraint("Horizontal", 34, 2, 35, 2),
    Sketcher.Constraint("Horizontal", 33, 2, 37, 2),
    Sketcher.Constraint("Vertical", 1, 3, 11, 3),
    Sketcher.Constraint("Vertical", 6, 3, 16, 3),
    Sketcher.Constraint("Vertical", 11, 3, 21, 3),
    Sketcher.Constraint("Vertical", 21, 3, 26, 3),
    Sketcher.Constraint("Vertical", 26, 3, 31, 3),
    Sketcher.Constraint("Vertical", 16, 3, 36, 3),
    Sketcher.Constraint("Vertical", 31, 3, 1, 1),
    Sketcher.Constraint("Vertical", 36, 3, 6, 1),
    Sketcher.Constraint("Vertical", 2, 2, 11, 1),
    Sketcher.Constraint("Vertical", 4, 2, 13, 2),
    Sketcher.Constraint("Vertical", 7, 2, 16, 1),
    Sketcher.Constraint("Vertical", 9, 2, 18, 2),
    Sketcher.Constraint("Vertical", 12, 2, 21, 1),
    Sketcher.Constraint("Vertical", 19, 2, 23, 2),
    Sketcher.Constraint("Vertical", 22, 2, 26, 1),
    Sketcher.Constraint("Vertical", 24, 2, 28, 2),
    Sketcher.Constraint("Vertical", 27, 2, 31, 1),
    Sketcher.Constraint("Vertical", 14, 2, 33, 2),
    Sketcher.Constraint("Vertical", 17, 2, 36, 1),
    Sketcher.Constraint("Vertical", 29, 2, 38, 2),
    Sketcher.Constraint("Equal", 0, 5),
    Sketcher.Constraint("Equal", 35, 2),
    Sketcher.Constraint("Equal", 7, 12),
    Sketcher.Constraint("Equal", 25, 22),
    Sketcher.Constraint("Equal", 22, 27),
    Sketcher.Constraint("Radius", 1, Q("1 mm")),
    Sketcher.Constraint("DistanceX", 0, 1, 0, 2, Q("9 mm")),
    Sketcher.Constraint("DistanceX", 20, 1, 20, 2, Q("23 mm")),
    Sketcher.Constraint("DistanceY", 32, 2, 32, 1, Q("34 mm")),
    Sketcher.Constraint("DistanceX", -1, 1, 1, 3, Q("2 mm")),
    Sketcher.Constraint("DistanceY", -1, 1, 1, 3, Q("122 mm")),
    Sketcher.Constraint("DistanceY", -1, 1, 11, 3, Q("108 mm")),
    Sketcher.Constraint("DistanceY", -1, 1, 21, 3, Q("94 mm")),
    Sketcher.Constraint("DistanceY", -1, 1, 26, 3, Q("66 mm")),
    Sketcher.Constraint("DistanceY", -1, 1, 31, 3, Q("38 mm")),
])
sketch4.setExpression("Constraints[118]", "Params.sketch4_radius")
sketch4.setExpression("Constraints[119]", "Params.sketch4_width")
sketch4.setExpression("Constraints[120]", "Params.sketch4_width2")
sketch4.setExpression("Constraints[121]", "Params.sketch4_height")
pocket3 = body.newObject("PartDesign::Pocket", "Pocket002")
pocket3.Profile = sketch4
pocket3.setExpression("Length", "Params.pocket3_length")
pocket3.Reversed = True

# Sketch on YZ plane
sketch5 = body.newObject("Sketcher::SketchObject", "Sketch004")
sketch5.AttachmentSupport = (doc.getObject("YZ_Plane"), [""])
sketch5.MapMode = "FlatFace"
sketch5.AttachmentOffset = App.Placement(App.Vector(0, 0, 83), App.Rotation())
sketch5.addGeometry([
    Part.LineSegment(App.Vector(2.5, 105.8, 0), App.Vector(2.5, 100.2, 0)),  # 0
    Part.LineSegment(App.Vector(2.5, 100.2, 0), App.Vector(5.4, 100.2, 0)),  # 1
    Part.LineSegment(App.Vector(5.4, 100.2, 0), App.Vector(5.4, 105.8, 0)),  # 2
    Part.LineSegment(App.Vector(5.4, 105.8, 0), App.Vector(2.5, 105.8, 0)),  # 3
    Part.LineSegment(App.Vector(2.5, 65.8, 0), App.Vector(2.5, 60.1, 0)),  # 4
    Part.LineSegment(App.Vector(2.5, 60.1, 0), App.Vector(5.4, 60.1, 0)),  # 5
    Part.LineSegment(App.Vector(5.4, 60.1, 0), App.Vector(5.4, 65.8, 0)),  # 6
    Part.LineSegment(App.Vector(5.4, 65.8, 0), App.Vector(2.5, 65.8, 0)),  # 7
    Part.LineSegment(App.Vector(2.5, 25.9, 0), App.Vector(2.5, 20.1, 0)),  # 8
    Part.LineSegment(App.Vector(2.5, 20.1, 0), App.Vector(5.4, 20.1, 0)),  # 9
    Part.LineSegment(App.Vector(5.4, 20.1, 0), App.Vector(5.4, 25.9, 0)),  # 10
    Part.LineSegment(App.Vector(5.4, 25.9, 0), App.Vector(2.5, 25.9, 0)),  # 11
], False)
sketch5.addConstraint([
    Sketcher.Constraint("Coincident", 0, 2, 1, 1),
    Sketcher.Constraint("Coincident", 1, 2, 2, 1),
    Sketcher.Constraint("Coincident", 2, 2, 3, 1),
    Sketcher.Constraint("Coincident", 3, 2, 0, 1),
    Sketcher.Constraint("Coincident", 4, 2, 5, 1),
    Sketcher.Constraint("Coincident", 5, 2, 6, 1),
    Sketcher.Constraint("Coincident", 6, 2, 7, 1),
    Sketcher.Constraint("Coincident", 7, 2, 4, 1),
    Sketcher.Constraint("Coincident", 8, 2, 9, 1),
    Sketcher.Constraint("Coincident", 9, 2, 10, 1),
    Sketcher.Constraint("Coincident", 10, 2, 11, 1),
    Sketcher.Constraint("Coincident", 11, 2, 8, 1),
    Sketcher.Constraint("Vertical", 0),
    Sketcher.Constraint("Horizontal", 1),
    Sketcher.Constraint("Vertical", 2),
    Sketcher.Constraint("Horizontal", 3),
    Sketcher.Constraint("Vertical", 4),
    Sketcher.Constraint("Horizontal", 5),
    Sketcher.Constraint("Vertical", 6),
    Sketcher.Constraint("Horizontal", 7),
    Sketcher.Constraint("Vertical", 8),
    Sketcher.Constraint("Horizontal", 9),
    Sketcher.Constraint("Vertical", 10),
    Sketcher.Constraint("Horizontal", 11),
    Sketcher.Constraint("Equal", 3, 5),
    Sketcher.Constraint("Equal", 7, 9),
    Sketcher.Constraint("Equal", 2, 4),
    Sketcher.Constraint("Equal", 6, 8),
    Sketcher.Constraint("DistanceX", 1, 1, 1, 2, Q("2.9 mm")),
    Sketcher.Constraint("DistanceY", 0, 2, 0, 1, Q("5.7 mm")),
    Sketcher.Constraint("DistanceY", 4, 2, 0, 2, Q("40 mm")),
    Sketcher.Constraint("DistanceY", 8, 2, 4, 2, Q("40 mm")),
    Sketcher.Constraint("DistanceY", -1, 1, 0, 2, Q("100.15 mm")),
    Sketcher.Constraint("DistanceX", 0, 2, 4, 2, Q("0.038919 mm")),
    Sketcher.Constraint("DistanceX", 8, 2, 4, 2, Q("0.038778 mm")),
    Sketcher.Constraint("DistanceX", -1, 1, 0, 2, Q("2.504176 mm")),
])
sketch5.setExpression("Constraints[28]", "Params.sketch5_width")
sketch5.setExpression("Constraints[29]", "Params.sketch5_height")
pocket4 = body.newObject("PartDesign::Pocket", "Pocket003")
pocket4.Profile = sketch5
pocket4.setExpression("Length", "Params.pocket4_length")

# Sketch on YZ plane
sketch6 = body.newObject("Sketcher::SketchObject", "Sketch005")
sketch6.AttachmentSupport = (doc.getObject("YZ_Plane"), [""])
sketch6.MapMode = "FlatFace"
sketch6.AttachmentOffset = App.Placement(App.Vector(0, 0, -83), App.Rotation())
sketch6.addGeometry([
    Part.LineSegment(App.Vector(5.4, 105.8, 0), App.Vector(5.4, 100.2, 0)),  # 0
    Part.LineSegment(App.Vector(5.4, 100.2, 0), App.Vector(2.5, 100.2, 0)),  # 1
    Part.LineSegment(App.Vector(2.5, 100.2, 0), App.Vector(2.5, 105.8, 0)),  # 2
    Part.LineSegment(App.Vector(2.5, 105.8, 0), App.Vector(5.4, 105.8, 0)),  # 3
    Part.LineSegment(App.Vector(5.4, 65.8, 0), App.Vector(5.4, 60.1, 0)),  # 4
    Part.LineSegment(App.Vector(5.4, 60.1, 0), App.Vector(2.5, 60.1, 0)),  # 5
    Part.LineSegment(App.Vector(2.5, 60.1, 0), App.Vector(2.5, 65.8, 0)),  # 6
    Part.LineSegment(App.Vector(2.5, 65.8, 0), App.Vector(5.4, 65.8, 0)),  # 7
    Part.LineSegment(App.Vector(5.4, 25.9, 0), App.Vector(5.4, 20.1, 0)),  # 8
    Part.LineSegment(App.Vector(5.4, 20.1, 0), App.Vector(2.5, 20.1, 0)),  # 9
    Part.LineSegment(App.Vector(2.5, 20.1, 0), App.Vector(2.5, 25.9, 0)),  # 10
    Part.LineSegment(App.Vector(2.5, 25.9, 0), App.Vector(5.4, 25.9, 0)),  # 11
], False)
sketch6.addConstraint([
    Sketcher.Constraint("Coincident", 0, 2, 1, 1),
    Sketcher.Constraint("Coincident", 1, 2, 2, 1),
    Sketcher.Constraint("Coincident", 2, 2, 3, 1),
    Sketcher.Constraint("Coincident", 3, 2, 0, 1),
    Sketcher.Constraint("Coincident", 4, 2, 5, 1),
    Sketcher.Constraint("Coincident", 5, 2, 6, 1),
    Sketcher.Constraint("Coincident", 6, 2, 7, 1),
    Sketcher.Constraint("Coincident", 7, 2, 4, 1),
    Sketcher.Constraint("Coincident", 8, 2, 9, 1),
    Sketcher.Constraint("Coincident", 9, 2, 10, 1),
    Sketcher.Constraint("Coincident", 10, 2, 11, 1),
    Sketcher.Constraint("Coincident", 11, 2, 8, 1),
    Sketcher.Constraint("Vertical", 0),
    Sketcher.Constraint("Horizontal", 1),
    Sketcher.Constraint("Vertical", 2),
    Sketcher.Constraint("Horizontal", 3),
    Sketcher.Constraint("Vertical", 4),
    Sketcher.Constraint("Horizontal", 5),
    Sketcher.Constraint("Vertical", 6),
    Sketcher.Constraint("Horizontal", 7),
    Sketcher.Constraint("Vertical", 8),
    Sketcher.Constraint("Horizontal", 9),
    Sketcher.Constraint("Vertical", 10),
    Sketcher.Constraint("Horizontal", 11),
    Sketcher.Constraint("Vertical", 3, 2, 4, 2),
    Sketcher.Constraint("Vertical", 2, 2, 5, 2),
    Sketcher.Constraint("Vertical", 7, 2, 8, 2),
    Sketcher.Constraint("Vertical", 6, 2, 9, 2),
    Sketcher.Constraint("Equal", 2, 4),
    Sketcher.Constraint("Equal", 6, 8),
    Sketcher.Constraint("DistanceX", 1, 2, 1, 1, Q("2.9 mm")),
    Sketcher.Constraint("DistanceY", 0, 2, 0, 1, Q("5.7 mm")),
    Sketcher.Constraint("DistanceY", 4, 2, 0, 2, Q("40 mm")),
    Sketcher.Constraint("DistanceY", 8, 2, 4, 2, Q("40 mm")),
    Sketcher.Constraint("DistanceX", -1, 1, 0, 2, Q("5.4 mm")),
    Sketcher.Constraint("DistanceY", -1, 1, 0, 2, Q("100.15 mm")),
])
sketch6.setExpression("Constraints[30]", "Params.sketch6_width")
sketch6.setExpression("Constraints[31]", "Params.sketch6_height")
pocket5 = body.newObject("PartDesign::Pocket", "Pocket004")
pocket5.Profile = sketch6
pocket5.setExpression("Length", "Params.pocket5_length")
pocket5.Reversed = True
doc.recompute()

chamfer = body.newObject("PartDesign::Chamfer", "Chamfer")
chamfer.Base = (pocket5, edges_at(pocket5, [(0, 0, 0)]))
chamfer.setExpression("Size", "Params.chamfer_size")
doc.recompute()

chamfer2 = body.newObject("PartDesign::Chamfer", "Chamfer001")
chamfer2.Base = (chamfer, edges_at(chamfer, [(0, 0, 126)]))
chamfer2.setExpression("Size", "Params.chamfer2_size")
doc.recompute()

fillet = body.newObject("PartDesign::Fillet", "Fillet")
fillet.Base = (chamfer2, edges_at(chamfer2, [
    (79.2, 9, 0),
    (71, 9, 0),
    (59, 9, 0),
    (47, 9, 0),
    (35, 9.2, 0),
    (55.2, 9, 0),
    (67.2, 9, 0),
    (43.2, 9.2, 0),
    (31.2, 9.2, 0),
    (23, 9.2, 0),
    (19.2, 9.2, 0),
    (11, 9.2, 0),
    (7.2, 9, 0),
    (-27.2, 9, 0),
    (-31, 9.2, 0),
    (-43.2, 9.2, 0),
    (-47, 9.2, 0),
    (-63.2, 9.2, 0),
    (-67, 9, 0),
    (-79.2, 9, 0),
]))
fillet.setExpression("Radius", "Params.fillet_radius")
doc.recompute()

fillet2 = body.newObject("PartDesign::Fillet", "Fillet001")
fillet2.Base = (fillet, edges_at(fillet, [
    (-79.2, 9, 126),
    (-67, 9, 126),
    (-63.2, 9.2, 126),
    (-47, 9.2, 126),
    (-43.2, 9.2, 126),
    (-31, 9.2, 126),
    (-27.2, 9, 126),
    (7.2, 9, 126),
    (11, 9.2, 126),
    (19.2, 9.2, 126),
    (23, 9.2, 126),
    (31.2, 9.2, 126),
    (35, 9.2, 126),
    (43.2, 9.2, 126),
    (47, 9, 126),
    (55.2, 9, 126),
    (59, 9, 126),
    (67.2, 9, 126),
    (71, 9, 126),
    (79.2, 9, 126),
]))
fillet2.setExpression("Radius", "Params.fillet2_radius")

doc.recompute()
